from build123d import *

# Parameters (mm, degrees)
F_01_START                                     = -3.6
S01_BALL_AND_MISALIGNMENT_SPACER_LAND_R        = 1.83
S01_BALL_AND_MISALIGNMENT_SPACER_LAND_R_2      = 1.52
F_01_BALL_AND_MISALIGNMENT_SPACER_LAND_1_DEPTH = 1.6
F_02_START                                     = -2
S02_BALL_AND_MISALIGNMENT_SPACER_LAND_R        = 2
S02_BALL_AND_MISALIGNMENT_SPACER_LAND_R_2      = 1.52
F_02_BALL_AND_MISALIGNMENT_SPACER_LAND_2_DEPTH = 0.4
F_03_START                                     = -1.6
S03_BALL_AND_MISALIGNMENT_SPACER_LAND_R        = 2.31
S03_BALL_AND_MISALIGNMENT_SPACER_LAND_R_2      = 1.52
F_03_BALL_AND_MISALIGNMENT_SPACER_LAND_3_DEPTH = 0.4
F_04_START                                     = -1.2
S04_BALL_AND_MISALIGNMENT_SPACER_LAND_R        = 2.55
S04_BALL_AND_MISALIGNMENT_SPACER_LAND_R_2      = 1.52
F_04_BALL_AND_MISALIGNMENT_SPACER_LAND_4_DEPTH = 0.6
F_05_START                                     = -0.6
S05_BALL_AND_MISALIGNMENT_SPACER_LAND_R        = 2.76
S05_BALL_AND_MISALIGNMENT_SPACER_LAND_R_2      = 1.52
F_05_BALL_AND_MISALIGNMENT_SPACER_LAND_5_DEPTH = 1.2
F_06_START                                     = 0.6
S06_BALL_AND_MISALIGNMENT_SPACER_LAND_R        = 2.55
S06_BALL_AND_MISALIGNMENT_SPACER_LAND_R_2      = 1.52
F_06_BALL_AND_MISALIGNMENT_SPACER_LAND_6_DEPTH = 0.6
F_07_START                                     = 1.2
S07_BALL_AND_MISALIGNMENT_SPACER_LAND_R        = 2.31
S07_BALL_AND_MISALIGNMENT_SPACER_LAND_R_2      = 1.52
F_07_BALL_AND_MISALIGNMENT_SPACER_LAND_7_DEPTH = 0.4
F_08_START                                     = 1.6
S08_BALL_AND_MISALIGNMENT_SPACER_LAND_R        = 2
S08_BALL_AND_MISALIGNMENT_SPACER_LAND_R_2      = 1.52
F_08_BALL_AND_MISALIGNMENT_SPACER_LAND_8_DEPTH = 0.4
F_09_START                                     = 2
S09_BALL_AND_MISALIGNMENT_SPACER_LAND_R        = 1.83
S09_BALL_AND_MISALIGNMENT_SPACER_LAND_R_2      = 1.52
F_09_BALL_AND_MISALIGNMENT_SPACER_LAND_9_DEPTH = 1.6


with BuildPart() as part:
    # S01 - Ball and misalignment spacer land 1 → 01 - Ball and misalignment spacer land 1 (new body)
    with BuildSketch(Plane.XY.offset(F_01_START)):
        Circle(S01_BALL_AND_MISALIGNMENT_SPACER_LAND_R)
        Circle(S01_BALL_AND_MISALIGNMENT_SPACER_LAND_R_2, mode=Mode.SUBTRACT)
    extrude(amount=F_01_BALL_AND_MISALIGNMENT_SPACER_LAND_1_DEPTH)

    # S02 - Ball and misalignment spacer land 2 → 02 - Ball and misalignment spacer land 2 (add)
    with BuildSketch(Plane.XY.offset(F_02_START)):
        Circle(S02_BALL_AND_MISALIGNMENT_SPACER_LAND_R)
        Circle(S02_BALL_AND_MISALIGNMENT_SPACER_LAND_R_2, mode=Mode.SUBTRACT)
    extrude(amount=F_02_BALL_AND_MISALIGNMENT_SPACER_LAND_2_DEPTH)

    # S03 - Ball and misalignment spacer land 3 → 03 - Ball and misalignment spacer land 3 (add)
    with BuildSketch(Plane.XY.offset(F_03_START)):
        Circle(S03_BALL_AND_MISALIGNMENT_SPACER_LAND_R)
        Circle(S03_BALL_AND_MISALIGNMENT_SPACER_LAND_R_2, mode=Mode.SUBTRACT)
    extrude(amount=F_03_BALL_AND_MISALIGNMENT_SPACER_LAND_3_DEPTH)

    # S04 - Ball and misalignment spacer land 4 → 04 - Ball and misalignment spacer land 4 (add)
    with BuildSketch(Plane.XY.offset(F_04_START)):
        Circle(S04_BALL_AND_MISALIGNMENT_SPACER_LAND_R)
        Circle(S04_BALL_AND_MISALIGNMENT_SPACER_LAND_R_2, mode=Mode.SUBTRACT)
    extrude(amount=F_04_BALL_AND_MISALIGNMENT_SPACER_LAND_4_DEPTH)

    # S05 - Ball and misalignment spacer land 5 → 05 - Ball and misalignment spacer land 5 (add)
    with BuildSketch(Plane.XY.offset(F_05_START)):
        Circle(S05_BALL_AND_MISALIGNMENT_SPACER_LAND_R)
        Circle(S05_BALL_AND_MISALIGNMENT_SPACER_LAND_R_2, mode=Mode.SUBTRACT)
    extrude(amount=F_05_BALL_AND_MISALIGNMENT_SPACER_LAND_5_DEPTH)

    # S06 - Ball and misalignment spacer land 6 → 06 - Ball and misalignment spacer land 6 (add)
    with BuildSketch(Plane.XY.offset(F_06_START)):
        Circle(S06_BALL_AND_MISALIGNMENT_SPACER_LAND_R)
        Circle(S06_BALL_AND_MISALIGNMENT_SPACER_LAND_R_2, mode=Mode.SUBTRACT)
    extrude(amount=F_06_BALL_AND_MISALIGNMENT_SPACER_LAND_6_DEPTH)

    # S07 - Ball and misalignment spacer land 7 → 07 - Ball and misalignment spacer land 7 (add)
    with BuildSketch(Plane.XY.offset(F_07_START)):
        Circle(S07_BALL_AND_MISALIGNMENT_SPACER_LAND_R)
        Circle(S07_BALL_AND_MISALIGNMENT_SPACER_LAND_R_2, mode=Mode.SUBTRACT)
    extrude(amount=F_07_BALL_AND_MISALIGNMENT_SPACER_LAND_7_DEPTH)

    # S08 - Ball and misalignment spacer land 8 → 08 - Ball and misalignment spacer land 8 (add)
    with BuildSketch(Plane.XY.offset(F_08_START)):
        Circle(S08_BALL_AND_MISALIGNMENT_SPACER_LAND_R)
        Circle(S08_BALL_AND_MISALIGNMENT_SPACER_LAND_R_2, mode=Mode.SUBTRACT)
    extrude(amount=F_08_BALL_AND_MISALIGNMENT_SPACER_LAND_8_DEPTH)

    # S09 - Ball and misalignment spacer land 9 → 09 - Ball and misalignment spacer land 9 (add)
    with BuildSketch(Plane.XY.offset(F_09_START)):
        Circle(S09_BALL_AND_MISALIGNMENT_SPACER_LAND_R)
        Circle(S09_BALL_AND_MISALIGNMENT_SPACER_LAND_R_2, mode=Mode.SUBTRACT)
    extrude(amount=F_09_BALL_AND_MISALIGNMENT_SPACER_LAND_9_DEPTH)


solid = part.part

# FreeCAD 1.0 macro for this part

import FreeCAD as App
import Part
import Sketcher
from FreeCAD import Vector

doc = App.newDocument("Part")
body = doc.addObject("PartDesign::Body", "Body")

# Sketch on XY plane
sketch1 = body.newObject("Sketcher::SketchObject", "Sketch")
sketch1.AttachmentSupport = (doc.getObject("XY_Plane"), [""])
sketch1.MapMode = "FlatFace"
sketch1.AttachmentOffset = App.Placement(Vector(0, 0, -3.6), App.Rotation())
sketch1.addGeometry(Part.Circle(Vector(0, 0, 0), Vector(0, 0, 1), 1.8), False)
sketch1.addGeometry(Part.Circle(Vector(0, 0, 0), Vector(0, 0, 1), 1.5), False)
sketch1.addConstraint(Sketcher.Constraint("Coincident", 0, 3, -1, 1))
sketch1.addConstraint(Sketcher.Constraint("Coincident", 1, 3, -1, 1))
sketch1.addConstraint(Sketcher.Constraint("Diameter", 0, 3.66))
sketch1.addConstraint(Sketcher.Constraint("Diameter", 1, 3.04))
pad1 = body.newObject("PartDesign::Pad", "Pad")
pad1.Profile = sketch1
pad1.Length = 1.6

# Sketch on XY plane
sketch2 = body.newObject("Sketcher::SketchObject", "Sketch001")
sketch2.AttachmentSupport = (doc.getObject("XY_Plane"), [""])
sketch2.MapMode = "FlatFace"
sketch2.AttachmentOffset = App.Placement(Vector(0, 0, -2), App.Rotation())
sketch2.addGeometry(Part.Circle(Vector(0, 0, 0), Vector(0, 0, 1), 2), False)
sketch2.addGeometry(Part.Circle(Vector(0, 0, 0), Vector(0, 0, 1), 1.5), False)
sketch2.addConstraint(Sketcher.Constraint("Coincident", 0, 3, -1, 1))
sketch2.addConstraint(Sketcher.Constraint("Coincident", 1, 3, -1, 1))
sketch2.addConstraint(Sketcher.Constraint("Diameter", 0, 4.0))
sketch2.addConstraint(Sketcher.Constraint("Diameter", 1, 3.04))
pad2 = body.newObject("PartDesign::Pad", "Pad001")
pad2.Profile = sketch2
pad2.Length = 0.4

# Sketch on XY plane
sketch3 = body.newObject("Sketcher::SketchObject", "Sketch002")
sketch3.AttachmentSupport = (doc.getObject("XY_Plane"), [""])
sketch3.MapMode = "FlatFace"
sketch3.AttachmentOffset = App.Placement(Vector(0, 0, -1.6), App.Rotation())
sketch3.addGeometry(Part.Circle(Vector(0, 0, 0), Vector(0, 0, 1), 2.3), False)
sketch3.addGeometry(Part.Circle(Vector(0, 0, 0), Vector(0, 0, 1), 1.5), False)
sketch3.addConstraint(Sketcher.Constraint("Coincident", 0, 3, -1, 1))
sketch3.addConstraint(Sketcher.Constraint("Coincident", 1, 3, -1, 1))
sketch3.addConstraint(Sketcher.Constraint("Diameter", 0, 4.62))
sketch3.addConstraint(Sketcher.Constraint("Diameter", 1, 3.04))
pad3 = body.newObject("PartDesign::Pad", "Pad002")
pad3.Profile = sketch3
pad3.Length = 0.4

# Sketch on XY plane
sketch4 = body.newObject("Sketcher::SketchObject", "Sketch003")
sketch4.AttachmentSupport = (doc.getObject("XY_Plane"), [""])
sketch4.MapMode = "FlatFace"
sketch4.AttachmentOffset = App.Placement(Vector(0, 0, -1.2), App.Rotation())
sketch4.addGeometry(Part.Circle(Vector(0, 0, 0), Vector(0, 0, 1), 2.5), False)
sketch4.addGeometry(Part.Circle(Vector(0, 0, 0), Vector(0, 0, 1), 1.5), False)
sketch4.addConstraint(Sketcher.Constraint("Coincident", 0, 3, -1, 1))
sketch4.addConstraint(Sketcher.Constraint("Coincident", 1, 3, -1, 1))
sketch4.addConstraint(Sketcher.Constraint("Diameter", 0, 5.1))
sketch4.addConstraint(Sketcher.Constraint("Diameter", 1, 3.04))
pad4 = body.newObject("PartDesign::Pad", "Pad003")
pad4.Profile = sketch4
pad4.Length = 0.6

# Sketch on XY plane
sketch5 = body.newObject("Sketcher::SketchObject", "Sketch004")
sketch5.AttachmentSupport = (doc.getObject("XY_Plane"), [""])
sketch5.MapMode = "FlatFace"
sketch5.AttachmentOffset = App.Placement(Vector(0, 0, -0.6), App.Rotation())
sketch5.addGeometry(Part.Circle(Vector(0, 0, 0), Vector(0, 0, 1), 2.8), False)
sketch5.addGeometry(Part.Circle(Vector(0, 0, 0), Vector(0, 0, 1), 1.5), False)
sketch5.addConstraint(Sketcher.Constraint("Coincident", 0, 3, -1, 1))
sketch5.addConstraint(Sketcher.Constraint("Coincident", 1, 3, -1, 1))
sketch5.addConstraint(Sketcher.Constraint("Diameter", 0, 5.52))
sketch5.addConstraint(Sketcher.Constraint("Diameter", 1, 3.04))
pad5 = body.newObject("PartDesign::Pad", "Pad004")
pad5.Profile = sketch5
pad5.Length = 1.2

# Sketch on XY plane
sketch6 = body.newObject("Sketcher::SketchObject", "Sketch005")
sketch6.AttachmentSupport = (doc.getObject("XY_Plane"), [""])
sketch6.MapMode = "FlatFace"
sketch6.AttachmentOffset = App.Placement(Vector(0, 0, 0.6), App.Rotation())
sketch6.addGeometry(Part.Circle(Vector(0, 0, 0), Vector(0, 0, 1), 2.5), False)
sketch6.addGeometry(Part.Circle(Vector(0, 0, 0), Vector(0, 0, 1), 1.5), False)
sketch6.addConstraint(Sketcher.Constraint("Coincident", 0, 3, -1, 1))
sketch6.addConstraint(Sketcher.Constraint("Coincident", 1, 3, -1, 1))
sketch6.addConstraint(Sketcher.Constraint("Diameter", 0, 5.1))
sketch6.addConstraint(Sketcher.Constraint("Diameter", 1, 3.04))
pad6 = body.newObject("PartDesign::Pad", "Pad005")
pad6.Profile = sketch6
pad6.Length = 0.6

# Sketch on XY plane
sketch7 = body.newObject("Sketcher::SketchObject", "Sketch006")
sketch7.AttachmentSupport = (doc.getObject("XY_Plane"), [""])
sketch7.MapMode = "FlatFace"
sketch7.AttachmentOffset = App.Placement(Vector(0, 0, 1.2), App.Rotation())
sketch7.addGeometry(Part.Circle(Vector(0, 0, 0), Vector(0, 0, 1), 2.3), False)
sketch7.addGeometry(Part.Circle(Vector(0, 0, 0), Vector(0, 0, 1), 1.5), False)
sketch7.addConstraint(Sketcher.Constraint("Coincident", 0, 3, -1, 1))
sketch7.addConstraint(Sketcher.Constraint("Coincident", 1, 3, -1, 1))
sketch7.addConstraint(Sketcher.Constraint("Diameter", 0, 4.62))
sketch7.addConstraint(Sketcher.Constraint("Diameter", 1, 3.04))
pad7 = body.newObject("PartDesign::Pad", "Pad006")
pad7.Profile = sketch7
pad7.Length = 0.4

# Sketch on XY plane
sketch8 = body.newObject("Sketcher::SketchObject", "Sketch007")
sketch8.AttachmentSupport = (doc.getObject("XY_Plane"), [""])
sketch8.MapMode = "FlatFace"
sketch8.AttachmentOffset = App.Placement(Vector(0, 0, 1.6), App.Rotation())
sketch8.addGeometry(Part.Circle(Vector(0, 0, 0), Vector(0, 0, 1), 2), False)
sketch8.addGeometry(Part.Circle(Vector(0, 0, 0), Vector(0, 0, 1), 1.5), False)
sketch8.addConstraint(Sketcher.Constraint("Coincident", 0, 3, -1, 1))
sketch8.addConstraint(Sketcher.Constraint("Coincident", 1, 3, -1, 1))
sketch8.addConstraint(Sketcher.Constraint("Diameter", 0, 4.0))
sketch8.addConstraint(Sketcher.Constraint("Diameter", 1, 3.04))
pad8 = body.newObject("PartDesign::Pad", "Pad007")
pad8.Profile = sketch8
pad8.Length = 0.4

# Sketch on XY plane
sketch9 = body.newObject("Sketcher::SketchObject", "Sketch008")
sketch9.AttachmentSupport = (doc.getObject("XY_Plane"), [""])
sketch9.MapMode = "FlatFace"
sketch9.AttachmentOffset = App.Placement(Vector(0, 0, 2), App.Rotation())
sketch9.addGeometry(Part.Circle(Vector(0, 0, 0), Vector(0, 0, 1), 1.8), False)
sketch9.addGeometry(Part.Circle(Vector(0, 0, 0), Vector(0, 0, 1), 1.5), False)
sketch9.addConstraint(Sketcher.Constraint("Coincident", 0, 3, -1, 1))
sketch9.addConstraint(Sketcher.Constraint("Coincident", 1, 3, -1, 1))
sketch9.addConstraint(Sketcher.Constraint("Diameter", 0, 3.66))
sketch9.addConstraint(Sketcher.Constraint("Diameter", 1, 3.04))
pad9 = body.newObject("PartDesign::Pad", "Pad008")
pad9.Profile = sketch9
pad9.Length = 1.6

doc.recompute()
